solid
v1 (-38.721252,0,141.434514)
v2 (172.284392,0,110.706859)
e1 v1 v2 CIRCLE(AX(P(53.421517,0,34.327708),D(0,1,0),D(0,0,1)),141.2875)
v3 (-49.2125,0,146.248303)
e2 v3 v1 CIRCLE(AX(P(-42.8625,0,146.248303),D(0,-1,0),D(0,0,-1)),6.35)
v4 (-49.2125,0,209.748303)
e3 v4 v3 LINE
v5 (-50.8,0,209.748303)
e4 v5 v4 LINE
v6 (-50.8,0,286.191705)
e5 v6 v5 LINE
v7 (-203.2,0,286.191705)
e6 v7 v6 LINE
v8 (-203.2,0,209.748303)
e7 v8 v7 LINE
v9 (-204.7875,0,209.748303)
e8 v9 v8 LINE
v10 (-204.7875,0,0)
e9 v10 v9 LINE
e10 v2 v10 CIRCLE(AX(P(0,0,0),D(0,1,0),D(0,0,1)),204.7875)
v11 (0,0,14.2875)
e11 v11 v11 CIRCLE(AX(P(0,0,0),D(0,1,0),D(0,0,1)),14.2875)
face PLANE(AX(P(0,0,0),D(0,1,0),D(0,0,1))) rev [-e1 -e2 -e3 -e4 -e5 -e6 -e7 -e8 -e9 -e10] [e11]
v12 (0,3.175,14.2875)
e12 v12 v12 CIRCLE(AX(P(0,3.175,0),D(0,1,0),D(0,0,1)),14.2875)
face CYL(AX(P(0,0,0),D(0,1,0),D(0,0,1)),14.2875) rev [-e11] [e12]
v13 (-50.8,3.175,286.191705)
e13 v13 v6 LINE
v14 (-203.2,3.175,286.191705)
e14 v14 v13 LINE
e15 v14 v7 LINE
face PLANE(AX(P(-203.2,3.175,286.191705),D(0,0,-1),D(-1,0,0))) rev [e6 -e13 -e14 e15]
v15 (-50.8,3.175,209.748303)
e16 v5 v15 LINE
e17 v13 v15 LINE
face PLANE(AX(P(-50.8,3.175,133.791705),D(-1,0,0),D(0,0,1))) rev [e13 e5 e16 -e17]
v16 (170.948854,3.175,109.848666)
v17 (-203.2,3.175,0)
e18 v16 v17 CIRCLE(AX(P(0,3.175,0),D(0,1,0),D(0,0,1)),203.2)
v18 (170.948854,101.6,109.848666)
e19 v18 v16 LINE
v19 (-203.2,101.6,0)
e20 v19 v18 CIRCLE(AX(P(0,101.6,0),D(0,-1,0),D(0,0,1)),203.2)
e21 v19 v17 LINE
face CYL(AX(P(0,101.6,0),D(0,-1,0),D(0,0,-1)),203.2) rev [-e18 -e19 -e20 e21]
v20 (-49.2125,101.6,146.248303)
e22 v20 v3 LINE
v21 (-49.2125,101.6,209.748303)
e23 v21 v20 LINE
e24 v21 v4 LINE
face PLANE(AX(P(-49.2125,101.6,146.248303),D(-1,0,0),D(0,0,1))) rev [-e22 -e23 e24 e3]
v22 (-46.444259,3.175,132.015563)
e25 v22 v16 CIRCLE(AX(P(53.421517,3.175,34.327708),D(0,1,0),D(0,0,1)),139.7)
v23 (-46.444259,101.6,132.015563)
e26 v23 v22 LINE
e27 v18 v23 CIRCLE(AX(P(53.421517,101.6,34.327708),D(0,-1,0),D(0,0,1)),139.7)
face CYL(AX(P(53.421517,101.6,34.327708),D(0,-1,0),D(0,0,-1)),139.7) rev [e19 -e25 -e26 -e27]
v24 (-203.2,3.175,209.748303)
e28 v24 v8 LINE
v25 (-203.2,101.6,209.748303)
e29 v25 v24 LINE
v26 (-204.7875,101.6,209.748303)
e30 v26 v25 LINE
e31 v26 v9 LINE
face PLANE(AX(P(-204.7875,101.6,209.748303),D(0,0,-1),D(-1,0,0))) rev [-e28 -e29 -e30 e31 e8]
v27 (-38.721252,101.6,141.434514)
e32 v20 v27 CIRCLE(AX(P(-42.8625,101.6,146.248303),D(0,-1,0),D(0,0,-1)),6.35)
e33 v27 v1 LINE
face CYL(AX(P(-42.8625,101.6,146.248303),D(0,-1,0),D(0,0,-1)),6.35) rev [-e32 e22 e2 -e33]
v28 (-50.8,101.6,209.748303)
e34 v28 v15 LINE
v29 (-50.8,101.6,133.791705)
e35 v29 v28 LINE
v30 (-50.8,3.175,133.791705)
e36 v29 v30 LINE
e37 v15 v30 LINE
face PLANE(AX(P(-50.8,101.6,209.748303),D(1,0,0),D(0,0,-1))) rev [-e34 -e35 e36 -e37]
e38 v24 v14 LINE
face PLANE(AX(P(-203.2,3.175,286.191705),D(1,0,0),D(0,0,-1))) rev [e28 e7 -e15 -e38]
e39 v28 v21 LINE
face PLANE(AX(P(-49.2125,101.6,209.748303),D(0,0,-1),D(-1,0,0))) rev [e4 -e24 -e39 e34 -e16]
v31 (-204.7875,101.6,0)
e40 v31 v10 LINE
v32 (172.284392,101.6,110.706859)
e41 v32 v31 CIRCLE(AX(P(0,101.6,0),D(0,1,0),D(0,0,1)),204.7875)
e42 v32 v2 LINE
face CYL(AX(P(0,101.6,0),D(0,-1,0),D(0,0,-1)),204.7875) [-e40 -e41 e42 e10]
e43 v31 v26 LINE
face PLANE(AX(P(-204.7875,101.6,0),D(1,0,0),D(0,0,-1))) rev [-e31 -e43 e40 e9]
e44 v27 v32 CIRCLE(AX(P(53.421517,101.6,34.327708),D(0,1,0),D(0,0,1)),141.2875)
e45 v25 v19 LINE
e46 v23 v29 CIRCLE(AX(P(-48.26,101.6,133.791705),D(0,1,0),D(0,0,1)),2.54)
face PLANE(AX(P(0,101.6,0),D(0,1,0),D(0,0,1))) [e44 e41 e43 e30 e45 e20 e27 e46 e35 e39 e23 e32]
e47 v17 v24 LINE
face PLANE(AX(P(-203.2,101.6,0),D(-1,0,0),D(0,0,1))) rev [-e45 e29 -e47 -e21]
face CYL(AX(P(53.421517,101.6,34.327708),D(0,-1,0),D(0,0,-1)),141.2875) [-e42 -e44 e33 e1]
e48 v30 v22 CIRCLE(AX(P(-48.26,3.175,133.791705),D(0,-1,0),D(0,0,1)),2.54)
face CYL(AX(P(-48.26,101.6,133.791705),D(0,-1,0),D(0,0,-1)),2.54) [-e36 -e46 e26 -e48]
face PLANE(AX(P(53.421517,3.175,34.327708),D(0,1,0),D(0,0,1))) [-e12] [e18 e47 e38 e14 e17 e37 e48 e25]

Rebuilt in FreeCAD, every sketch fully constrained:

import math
import FreeCAD as App
import Part
import Sketcher

V = App.Vector
Q = App.Units.Quantity

doc = App.newDocument("Part")
body = doc.addObject("PartDesign::Body", "Body")

# Sketch on XZ plane
sketch1 = body.newObject("Sketcher::SketchObject", "Sketch")
sketch1.AttachmentSupport = (doc.getObject("XZ_Plane"), [""])
sketch1.MapMode = "FlatFace"
sketch1.addGeometry([
    Part.LineSegment(V(-203.2, 209.7, 0), V(-203.2, 0, 0)),  # 0
    Part.ArcOfCircle(Part.Circle(V(0, 0, 0), V(0, 0, 1), 203.2), math.radians(180), math.radians(393)),  # 1
    Part.ArcOfCircle(Part.Circle(V(53.4, 34.3, 0), V(0, 0, 1), 139.7), math.radians(33), math.radians(136)),  # 2
    Part.ArcOfCircle(Part.Circle(V(-48.3, 133.8, 0), V(0, 0, 1), 2.5), math.radians(-180), math.radians(-44)),  # 3
    Part.LineSegment(V(-50.8, 133.8, 0), V(-50.8, 209.7, 0)),  # 4
    Part.LineSegment(V(-50.8, 209.7, 0), V(-49.2, 209.7, 0)),  # 5
    Part.LineSegment(V(-49.2, 209.7, 0), V(-49.2, 146.2, 0)),  # 6
    Part.ArcOfCircle(Part.Circle(V(-42.9, 146.2, 0), V(0, 0, 1), 6.3), math.radians(180), math.radians(311)),  # 7
    Part.ArcOfCircle(Part.Circle(V(53.4, 34.3, 0), V(0, 0, 1), 141.3), math.radians(33), math.radians(131)),  # 8
    Part.ArcOfCircle(Part.Circle(V(0, 0, 0), V(0, 0, 1), 204.8), math.radians(180), math.radians(393)),  # 9
    Part.LineSegment(V(-204.8, 0, 0), V(-204.8, 209.7, 0)),  # 10
    Part.LineSegment(V(-204.8, 209.7, 0), V(-203.2, 209.7, 0)),  # 11
], False)
sketch1.addConstraint([
    Sketcher.Constraint("Tangent", 0, 2, 1, 1),
    Sketcher.Constraint("Tangent", 1, 2, 2, 1),
    Sketcher.Constraint("Tangent", 2, 2, 3, 2),
    Sketcher.Constraint("Tangent", 3, 1, 4, 1),
    Sketcher.Constraint("Coincident", 4, 2, 5, 1),
    Sketcher.Constraint("Coincident", 5, 2, 6, 1),
    Sketcher.Constraint("Tangent", 6, 2, 7, 1),
    Sketcher.Constraint("Tangent", 7, 2, 8, 2),
    Sketcher.Constraint("Tangent", 8, 1, 9, 2),
    Sketcher.Constraint("Tangent", 9, 1, 10, 1),
    Sketcher.Constraint("Coincident", 10, 2, 11, 1),
    Sketcher.Constraint("Coincident", 11, 2, 0, 1),
    Sketcher.Constraint("Vertical", 0),
    Sketcher.Constraint("Vertical", 4),
    Sketcher.Constraint("Horizontal", 5),
    Sketcher.Constraint("Vertical", 6),
    Sketcher.Constraint("Vertical", 10),
    Sketcher.Constraint("Horizontal", 11),
    Sketcher.Constraint("Coincident", 1, 3, -1, 1),
    Sketcher.Constraint("Coincident", 9, 3, -1, 1),
    Sketcher.Constraint("Coincident", 8, 3, 2, 3),
    Sketcher.Constraint("Horizontal", 5, 2, 10, 2),
    Sketcher.Constraint("Equal", 5, 11),
    Sketcher.Constraint("Radius", 1, Q("8 in")),
    Sketcher.Constraint("Radius", 2, Q("5.5 in")),
    Sketcher.Constraint("Radius", 3, Q("0.1 in")),
    Sketcher.Constraint("Radius", 7, Q("0.25 in")),
    Sketcher.Constraint("DistanceY", 6, 2, 6, 1, Q("2.5 in")),
    Sketcher.Constraint("DistanceX", 3, 1, -1, 1, Q("2 in")),
    Sketcher.Constraint("Radius", 8, Q("5.5625 in")),
    Sketcher.Constraint("DistanceY", 0, 2, 0, 1, 209.748303),
])
pad1 = body.newObject("PartDesign::Pad", "Pad")
pad1.Profile = sketch1
pad1.Length = Q("4 in")
pad1.Reversed = True

# Sketch on XZ plane
sketch2 = body.newObject("Sketcher::SketchObject", "Sketch001")
sketch2.AttachmentSupport = (doc.getObject("XZ_Plane"), [""])
sketch2.MapMode = "FlatFace"
sketch2.addGeometry([
    Part.LineSegment(V(-50.8, 286.2, 0), V(-50.8, 133.8, 0)),  # 0
    Part.ArcOfCircle(Part.Circle(V(-48.3, 133.8, 0), V(0, 0, 1), 2.5), math.radians(-180), math.radians(-44)),  # 1
    Part.ArcOfCircle(Part.Circle(V(53.4, 34.3, 0), V(0, 0, 1), 139.7), math.radians(33), math.radians(136)),  # 2
    Part.ArcOfCircle(Part.Circle(V(0, 0, 0), V(0, 0, 1), 203.2), math.radians(180), math.radians(393)),  # 3
    Part.LineSegment(V(-203.2, 0, 0), V(-203.2, 286.2, 0)),  # 4
    Part.LineSegment(V(-203.2, 286.2, 0), V(-50.8, 286.2, 0)),  # 5
], False)
sketch2.addConstraint([
    Sketcher.Constraint("Tangent", 0, 2, 1, 1),
    Sketcher.Constraint("Tangent", 1, 2, 2, 2),
    Sketcher.Constraint("Tangent", 2, 1, 3, 2),
    Sketcher.Constraint("Tangent", 3, 1, 4, 1),
    Sketcher.Constraint("Coincident", 4, 2, 5, 1),
    Sketcher.Constraint("Coincident", 5, 2, 0, 1),
    Sketcher.Constraint("Vertical", 0),
    Sketcher.Constraint("Vertical", 4),
    Sketcher.Constraint("Horizontal", 5),
    Sketcher.Constraint("Coincident", 3, 3, -1, 1),
    Sketcher.Constraint("Equal", 5, 0),
    Sketcher.Constraint("Radius", 3, Q("8 in")),
    Sketcher.Constraint("Radius", 1, Q("0.1 in")),
    Sketcher.Constraint("Radius", 2, Q("5.5 in")),
    Sketcher.Constraint("DistanceX", 5, 1, 5, 2, Q("6 in")),
    Sketcher.Constraint("DistanceY", 4, 1, 4, 2, 286.191705),
])
pad2 = body.newObject("PartDesign::Pad", "Pad001")
pad2.Profile = sketch2
pad2.Length = Q("0.125 in")
pad2.Reversed = True

# Sketch on XZ plane
sketch3 = body.newObject("Sketcher::SketchObject", "Sketch002")
sketch3.AttachmentSupport = (doc.getObject("XZ_Plane"), [""])
sketch3.MapMode = "FlatFace"
sketch3.AttachmentOffset = App.Placement(V(0, 0, -0.125 * 25.4), App.Rotation())
sketch3.addGeometry(Part.Circle(V(0, 0, 0), V(0, 0, 1), 14), False)
sketch3.addConstraint([
    Sketcher.Constraint("Coincident", 0, 3, -1, 1),
    Sketcher.Constraint("Diameter", 0, Q("1.125 in")),
])
pocket1 = body.newObject("PartDesign::Pocket", "Pocket")
pocket1.Profile = sketch3
pocket1.Type = "ThroughAll"
pocket1.Reversed = True

doc.recompute()
